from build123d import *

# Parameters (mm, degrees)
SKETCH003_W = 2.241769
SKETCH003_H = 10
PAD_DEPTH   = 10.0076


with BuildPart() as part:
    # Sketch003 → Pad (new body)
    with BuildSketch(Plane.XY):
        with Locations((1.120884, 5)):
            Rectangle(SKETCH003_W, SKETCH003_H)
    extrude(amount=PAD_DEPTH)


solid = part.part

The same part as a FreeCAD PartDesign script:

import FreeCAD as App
import Part
import Sketcher

V = App.Vector


def add_polygon(sketch, points):
    """Adds a closed chain of lines whose ends are joined by coincident constraints."""
    first, n = sketch.GeometryCount, len(points)
    for a, b in zip(points, points[1:] + points[:1]):
        sketch.addGeometry(Part.LineSegment(App.Vector(*a, 0), App.Vector(*b, 0)), False)
    for i in range(n):
        sketch.addConstraint(Sketcher.Constraint("Coincident", first + i, 2, first + (i + 1) % n, 1))

doc = App.newDocument("Part")
params = doc.addObject("Spreadsheet::Sheet", "Params")
for row, (alias, value) in enumerate([
    ("sketch1_height", "10 mm"),
    ("pad1_length", "10.0076 mm"),
], start=1):
    params.set(f"A{row}", alias)
    params.set(f"B{row}", "=" + value)
    params.setAlias(f"B{row}", alias)

body = doc.addObject("PartDesign::Body", "Body")

# Sketch on XY plane
sketch1 = doc.addObject("Sketcher::SketchObject", "Sketch")
body.addObject(sketch1)
sketch1.AttachmentSupport = (doc.XY_Plane, [""])
sketch1.MapMode = "FlatFace"
add_polygon(sketch1, [(0, 10), (0, 0), (2.2, 0), (2.2, 10)])  # lines 0-3
sketch1.addConstraint([
    Sketcher.Constraint("Vertical", 0),
    Sketcher.Constraint("Horizontal", 1),
    Sketcher.Constraint("Vertical", 2),
    Sketcher.Constraint("Horizontal", 3),
    Sketcher.Constraint("Coincident", 0, 2, -1, 1),
    Sketcher.Constraint("DistanceY", 0, 2, 0, 1, 10.0),
    Sketcher.Constraint("DistanceX", 1, 1, 1, 2, 2.241769),
])
sketch1.setExpression("Constraints[9]", "Params.sketch1_height")
pad1 = doc.addObject("PartDesign::Pad", "Pad")
body.addObject(pad1)
pad1.Profile = sketch1
pad1.setExpression("Length", "Params.pad1_length")

doc.recompute()
